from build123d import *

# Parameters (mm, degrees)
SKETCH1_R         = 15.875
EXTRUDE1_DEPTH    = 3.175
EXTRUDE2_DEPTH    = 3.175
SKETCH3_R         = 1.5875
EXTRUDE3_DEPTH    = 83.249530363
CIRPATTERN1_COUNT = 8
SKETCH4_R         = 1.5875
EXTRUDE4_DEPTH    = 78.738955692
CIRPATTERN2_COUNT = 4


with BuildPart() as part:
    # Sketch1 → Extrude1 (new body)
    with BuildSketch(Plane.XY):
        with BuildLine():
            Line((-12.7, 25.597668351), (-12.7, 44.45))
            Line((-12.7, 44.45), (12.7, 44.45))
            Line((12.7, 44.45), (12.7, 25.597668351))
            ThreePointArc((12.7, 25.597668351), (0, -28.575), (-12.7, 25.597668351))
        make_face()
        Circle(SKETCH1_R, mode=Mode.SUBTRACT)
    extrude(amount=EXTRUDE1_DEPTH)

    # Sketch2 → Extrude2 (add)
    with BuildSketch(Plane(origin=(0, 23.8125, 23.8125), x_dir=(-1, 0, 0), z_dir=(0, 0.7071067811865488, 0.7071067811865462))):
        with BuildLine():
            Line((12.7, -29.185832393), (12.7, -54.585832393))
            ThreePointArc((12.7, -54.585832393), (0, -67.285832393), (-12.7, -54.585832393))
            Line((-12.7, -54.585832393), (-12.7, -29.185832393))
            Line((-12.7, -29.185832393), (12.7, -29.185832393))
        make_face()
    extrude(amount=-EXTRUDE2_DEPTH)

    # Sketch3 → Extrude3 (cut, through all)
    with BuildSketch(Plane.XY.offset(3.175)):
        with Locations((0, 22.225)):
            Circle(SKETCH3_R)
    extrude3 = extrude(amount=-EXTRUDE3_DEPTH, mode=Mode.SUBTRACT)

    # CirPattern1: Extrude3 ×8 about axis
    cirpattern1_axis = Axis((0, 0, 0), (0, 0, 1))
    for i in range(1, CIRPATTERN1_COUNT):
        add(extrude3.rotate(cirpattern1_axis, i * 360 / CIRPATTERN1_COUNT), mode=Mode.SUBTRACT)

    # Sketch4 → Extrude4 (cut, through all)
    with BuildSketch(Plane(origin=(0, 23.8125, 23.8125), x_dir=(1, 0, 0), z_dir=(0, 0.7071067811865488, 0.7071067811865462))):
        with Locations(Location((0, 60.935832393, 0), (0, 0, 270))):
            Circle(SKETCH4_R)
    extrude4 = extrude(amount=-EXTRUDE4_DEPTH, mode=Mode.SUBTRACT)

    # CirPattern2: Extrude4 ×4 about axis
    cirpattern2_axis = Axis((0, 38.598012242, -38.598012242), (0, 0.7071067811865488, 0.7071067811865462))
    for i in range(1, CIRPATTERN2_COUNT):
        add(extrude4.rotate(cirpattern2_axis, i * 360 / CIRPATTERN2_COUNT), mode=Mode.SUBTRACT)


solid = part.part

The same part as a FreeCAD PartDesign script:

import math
import FreeCAD as App
import Part
import Sketcher
Q = App.Units.Quantity

doc = App.newDocument("Part")
body = doc.addObject("PartDesign::Body", "Body")

# Sketch on XY plane
sketch1 = body.newObject("Sketcher::SketchObject", "Sketch")
sketch1.AttachmentSupport = (doc.getObject("XY_Plane"), [""])
sketch1.MapMode = "FlatFace"
sketch1.addGeometry(Part.LineSegment(App.Vector(-13, 44, 0), App.Vector(-13, 26, 0)), False)
sketch1.addGeometry(Part.ArcOfCircle(Part.Circle(App.Vector(0, 0, 0), App.Vector(0, 0, 1), 29), math.radians(116), math.radians(424)), False)
sketch1.addGeometry(Part.LineSegment(App.Vector(13, 26, 0), App.Vector(13, 44, 0)), False)
sketch1.addGeometry(Part.LineSegment(App.Vector(13, 44, 0), App.Vector(-13, 44, 0)), False)
sketch1.addGeometry(Part.Circle(App.Vector(0, 0, 0), App.Vector(0, 0, 1), 16), False)
sketch1.addConstraint(Sketcher.Constraint("Coincident", 0, 2, 1, 1))
sketch1.addConstraint(Sketcher.Constraint("Coincident", 1, 2, 2, 1))
sketch1.addConstraint(Sketcher.Constraint("Coincident", 2, 2, 3, 1))
sketch1.addConstraint(Sketcher.Constraint("Coincident", 3, 2, 0, 1))
sketch1.addConstraint(Sketcher.Constraint("Vertical", 0))
sketch1.addConstraint(Sketcher.Constraint("Vertical", 2))
sketch1.addConstraint(Sketcher.Constraint("Horizontal", 3))
sketch1.addConstraint(Sketcher.Constraint("Coincident", 1, 3, -1, 1))
sketch1.addConstraint(Sketcher.Constraint("Coincident", 4, 3, -1, 1))
sketch1.addConstraint(Sketcher.Constraint("Horizontal", 0, 2, 1, 2))
sketch1.addConstraint(Sketcher.Constraint("Diameter", 4, Q("1.25 in")))
sketch1.addConstraint(Sketcher.Constraint("DistanceX", 3, 2, 3, 1, Q("1 in")))
sketch1.addConstraint(Sketcher.Constraint("Radius", 1, Q("1.125 in")))
sketch1.addConstraint(Sketcher.Constraint("DistanceY", -1, 1, 2, 2, Q("1.75 in")))
pad1 = body.newObject("PartDesign::Pad", "Pad")
pad1.Profile = sketch1
pad1.Length = Q("0.125 in")

# Sketch on an angled plane
sketch2 = body.newObject("Sketcher::SketchObject", "Sketch001")
sketch2.Placement = App.Placement(App.Vector(0, 23.8125, 23.8125), App.Rotation(App.Vector(-1, 0, 0), App.Vector(0, -0.707106781, 0.707106781), App.Vector(0, 0.707106781, 0.707106781), "ZXY"))
sketch2.addGeometry(Part.LineSegment(App.Vector(13, -55, 0), App.Vector(13, -29, 0)), False)
sketch2.addGeometry(Part.LineSegment(App.Vector(13, -29, 0), App.Vector(-13, -29, 0)), False)
sketch2.addGeometry(Part.LineSegment(App.Vector(-13, -29, 0), App.Vector(-13, -55, 0)), False)
sketch2.addGeometry(Part.ArcOfCircle(Part.Circle(App.Vector(0, -55, 0), App.Vector(0, 0, 1), 13), math.radians(180), math.radians(360)), False)
sketch2.addConstraint(Sketcher.Constraint("Coincident", 0, 2, 1, 1))
sketch2.addConstraint(Sketcher.Constraint("Coincident", 1, 2, 2, 1))
sketch2.addConstraint(Sketcher.Constraint("Tangent", 2, 2, 3, 1))
sketch2.addConstraint(Sketcher.Constraint("Tangent", 3, 2, 0, 1))
sketch2.addConstraint(Sketcher.Constraint("Vertical", 0))
sketch2.addConstraint(Sketcher.Constraint("Horizontal", 1))
sketch2.addConstraint(Sketcher.Constraint("Vertical", 2))
sketch2.addConstraint(Sketcher.Constraint("PointOnObject", 3, 3, -2))
sketch2.addConstraint(Sketcher.Constraint("Equal", 1, 0))
sketch2.addConstraint(Sketcher.Constraint("Radius", 3, Q("0.5 in")))
sketch2.addConstraint(Sketcher.Constraint("DistanceY", 3, 3, -1, 1, Q("54.585832 mm")))
pad2 = body.newObject("PartDesign::Pad", "Pad001")
pad2.Profile = sketch2
pad2.Length = Q("0.125 in")
pad2.Reversed = True

# Sketch on XY plane
sketch3 = body.newObject("Sketcher::SketchObject", "Sketch002")
sketch3.AttachmentSupport = (doc.getObject("XY_Plane"), [""])
sketch3.MapMode = "FlatFace"
sketch3.AttachmentOffset = App.Placement(App.Vector(0, 0, 0.125 * 25.4), App.Rotation())
sketch3.addGeometry(Part.Circle(App.Vector(0, 22.2, 0), App.Vector(0, 0, 1), 1.6), False)
sketch3.addConstraint(Sketcher.Constraint("PointOnObject", 0, 3, -2))
sketch3.addConstraint(Sketcher.Constraint("Diameter", 0, Q("0.125 in")))
sketch3.addConstraint(Sketcher.Constraint("DistanceY", -1, 1, 0, 3, Q("0.875 in")))
pocket1 = body.newObject("PartDesign::Pocket", "Pocket")
pocket1.Profile = sketch3
pocket1.Type = "ThroughAll"
doc.recompute()

polarpattern = body.newObject("PartDesign::PolarPattern", "PolarPattern")
polarpattern.Originals = [pocket1]
polarpattern.Axis = (doc.getObject("Z_Axis"), [""])
polarpattern.Angle = 360
polarpattern.Occurrences = 8
body.Tip = polarpattern

# Sketch on an angled plane
sketch4 = body.newObject("Sketcher::SketchObject", "Sketch003")
sketch4.Placement = App.Placement(App.Vector(0, 23.8125, 23.8125), App.Rotation(App.Vector(1, 0, 0), App.Vector(0, 0.707106781, -0.707106781), App.Vector(0, 0.707106781, 0.707106781), "ZXY"))
sketch4.addGeometry(Part.Circle(App.Vector(0, 60.9, 0), App.Vector(0, 0, 1), 1.6), False)
sketch4.addConstraint(Sketcher.Constraint("PointOnObject", 0, 3, -2))
sketch4.addConstraint(Sketcher.Constraint("Diameter", 0, Q("0.125 in")))
sketch4.addConstraint(Sketcher.Constraint("DistanceY", -1, 1, 0, 3, Q("60.935832 mm")))
pocket2 = body.newObject("PartDesign::Pocket", "Pocket001")
pocket2.Profile = sketch4
pocket2.Type = "ThroughAll"
doc.recompute()

datumline = body.newObject("PartDesign::Line", "DatumLine")
datumline.Placement = App.Placement(App.Vector(0, 38.598012, -38.598012), App.Rotation(App.Vector(0, 0, 1), App.Vector(0, 0.707106781, 0.707106781)))
polarpattern2 = body.newObject("PartDesign::PolarPattern", "PolarPattern001")
polarpattern2.Originals = [pocket2]
polarpattern2.Axis = (datumline, [""])
polarpattern2.Angle = 360
polarpattern2.Occurrences = 4
body.Tip = polarpattern2

doc.recompute()
